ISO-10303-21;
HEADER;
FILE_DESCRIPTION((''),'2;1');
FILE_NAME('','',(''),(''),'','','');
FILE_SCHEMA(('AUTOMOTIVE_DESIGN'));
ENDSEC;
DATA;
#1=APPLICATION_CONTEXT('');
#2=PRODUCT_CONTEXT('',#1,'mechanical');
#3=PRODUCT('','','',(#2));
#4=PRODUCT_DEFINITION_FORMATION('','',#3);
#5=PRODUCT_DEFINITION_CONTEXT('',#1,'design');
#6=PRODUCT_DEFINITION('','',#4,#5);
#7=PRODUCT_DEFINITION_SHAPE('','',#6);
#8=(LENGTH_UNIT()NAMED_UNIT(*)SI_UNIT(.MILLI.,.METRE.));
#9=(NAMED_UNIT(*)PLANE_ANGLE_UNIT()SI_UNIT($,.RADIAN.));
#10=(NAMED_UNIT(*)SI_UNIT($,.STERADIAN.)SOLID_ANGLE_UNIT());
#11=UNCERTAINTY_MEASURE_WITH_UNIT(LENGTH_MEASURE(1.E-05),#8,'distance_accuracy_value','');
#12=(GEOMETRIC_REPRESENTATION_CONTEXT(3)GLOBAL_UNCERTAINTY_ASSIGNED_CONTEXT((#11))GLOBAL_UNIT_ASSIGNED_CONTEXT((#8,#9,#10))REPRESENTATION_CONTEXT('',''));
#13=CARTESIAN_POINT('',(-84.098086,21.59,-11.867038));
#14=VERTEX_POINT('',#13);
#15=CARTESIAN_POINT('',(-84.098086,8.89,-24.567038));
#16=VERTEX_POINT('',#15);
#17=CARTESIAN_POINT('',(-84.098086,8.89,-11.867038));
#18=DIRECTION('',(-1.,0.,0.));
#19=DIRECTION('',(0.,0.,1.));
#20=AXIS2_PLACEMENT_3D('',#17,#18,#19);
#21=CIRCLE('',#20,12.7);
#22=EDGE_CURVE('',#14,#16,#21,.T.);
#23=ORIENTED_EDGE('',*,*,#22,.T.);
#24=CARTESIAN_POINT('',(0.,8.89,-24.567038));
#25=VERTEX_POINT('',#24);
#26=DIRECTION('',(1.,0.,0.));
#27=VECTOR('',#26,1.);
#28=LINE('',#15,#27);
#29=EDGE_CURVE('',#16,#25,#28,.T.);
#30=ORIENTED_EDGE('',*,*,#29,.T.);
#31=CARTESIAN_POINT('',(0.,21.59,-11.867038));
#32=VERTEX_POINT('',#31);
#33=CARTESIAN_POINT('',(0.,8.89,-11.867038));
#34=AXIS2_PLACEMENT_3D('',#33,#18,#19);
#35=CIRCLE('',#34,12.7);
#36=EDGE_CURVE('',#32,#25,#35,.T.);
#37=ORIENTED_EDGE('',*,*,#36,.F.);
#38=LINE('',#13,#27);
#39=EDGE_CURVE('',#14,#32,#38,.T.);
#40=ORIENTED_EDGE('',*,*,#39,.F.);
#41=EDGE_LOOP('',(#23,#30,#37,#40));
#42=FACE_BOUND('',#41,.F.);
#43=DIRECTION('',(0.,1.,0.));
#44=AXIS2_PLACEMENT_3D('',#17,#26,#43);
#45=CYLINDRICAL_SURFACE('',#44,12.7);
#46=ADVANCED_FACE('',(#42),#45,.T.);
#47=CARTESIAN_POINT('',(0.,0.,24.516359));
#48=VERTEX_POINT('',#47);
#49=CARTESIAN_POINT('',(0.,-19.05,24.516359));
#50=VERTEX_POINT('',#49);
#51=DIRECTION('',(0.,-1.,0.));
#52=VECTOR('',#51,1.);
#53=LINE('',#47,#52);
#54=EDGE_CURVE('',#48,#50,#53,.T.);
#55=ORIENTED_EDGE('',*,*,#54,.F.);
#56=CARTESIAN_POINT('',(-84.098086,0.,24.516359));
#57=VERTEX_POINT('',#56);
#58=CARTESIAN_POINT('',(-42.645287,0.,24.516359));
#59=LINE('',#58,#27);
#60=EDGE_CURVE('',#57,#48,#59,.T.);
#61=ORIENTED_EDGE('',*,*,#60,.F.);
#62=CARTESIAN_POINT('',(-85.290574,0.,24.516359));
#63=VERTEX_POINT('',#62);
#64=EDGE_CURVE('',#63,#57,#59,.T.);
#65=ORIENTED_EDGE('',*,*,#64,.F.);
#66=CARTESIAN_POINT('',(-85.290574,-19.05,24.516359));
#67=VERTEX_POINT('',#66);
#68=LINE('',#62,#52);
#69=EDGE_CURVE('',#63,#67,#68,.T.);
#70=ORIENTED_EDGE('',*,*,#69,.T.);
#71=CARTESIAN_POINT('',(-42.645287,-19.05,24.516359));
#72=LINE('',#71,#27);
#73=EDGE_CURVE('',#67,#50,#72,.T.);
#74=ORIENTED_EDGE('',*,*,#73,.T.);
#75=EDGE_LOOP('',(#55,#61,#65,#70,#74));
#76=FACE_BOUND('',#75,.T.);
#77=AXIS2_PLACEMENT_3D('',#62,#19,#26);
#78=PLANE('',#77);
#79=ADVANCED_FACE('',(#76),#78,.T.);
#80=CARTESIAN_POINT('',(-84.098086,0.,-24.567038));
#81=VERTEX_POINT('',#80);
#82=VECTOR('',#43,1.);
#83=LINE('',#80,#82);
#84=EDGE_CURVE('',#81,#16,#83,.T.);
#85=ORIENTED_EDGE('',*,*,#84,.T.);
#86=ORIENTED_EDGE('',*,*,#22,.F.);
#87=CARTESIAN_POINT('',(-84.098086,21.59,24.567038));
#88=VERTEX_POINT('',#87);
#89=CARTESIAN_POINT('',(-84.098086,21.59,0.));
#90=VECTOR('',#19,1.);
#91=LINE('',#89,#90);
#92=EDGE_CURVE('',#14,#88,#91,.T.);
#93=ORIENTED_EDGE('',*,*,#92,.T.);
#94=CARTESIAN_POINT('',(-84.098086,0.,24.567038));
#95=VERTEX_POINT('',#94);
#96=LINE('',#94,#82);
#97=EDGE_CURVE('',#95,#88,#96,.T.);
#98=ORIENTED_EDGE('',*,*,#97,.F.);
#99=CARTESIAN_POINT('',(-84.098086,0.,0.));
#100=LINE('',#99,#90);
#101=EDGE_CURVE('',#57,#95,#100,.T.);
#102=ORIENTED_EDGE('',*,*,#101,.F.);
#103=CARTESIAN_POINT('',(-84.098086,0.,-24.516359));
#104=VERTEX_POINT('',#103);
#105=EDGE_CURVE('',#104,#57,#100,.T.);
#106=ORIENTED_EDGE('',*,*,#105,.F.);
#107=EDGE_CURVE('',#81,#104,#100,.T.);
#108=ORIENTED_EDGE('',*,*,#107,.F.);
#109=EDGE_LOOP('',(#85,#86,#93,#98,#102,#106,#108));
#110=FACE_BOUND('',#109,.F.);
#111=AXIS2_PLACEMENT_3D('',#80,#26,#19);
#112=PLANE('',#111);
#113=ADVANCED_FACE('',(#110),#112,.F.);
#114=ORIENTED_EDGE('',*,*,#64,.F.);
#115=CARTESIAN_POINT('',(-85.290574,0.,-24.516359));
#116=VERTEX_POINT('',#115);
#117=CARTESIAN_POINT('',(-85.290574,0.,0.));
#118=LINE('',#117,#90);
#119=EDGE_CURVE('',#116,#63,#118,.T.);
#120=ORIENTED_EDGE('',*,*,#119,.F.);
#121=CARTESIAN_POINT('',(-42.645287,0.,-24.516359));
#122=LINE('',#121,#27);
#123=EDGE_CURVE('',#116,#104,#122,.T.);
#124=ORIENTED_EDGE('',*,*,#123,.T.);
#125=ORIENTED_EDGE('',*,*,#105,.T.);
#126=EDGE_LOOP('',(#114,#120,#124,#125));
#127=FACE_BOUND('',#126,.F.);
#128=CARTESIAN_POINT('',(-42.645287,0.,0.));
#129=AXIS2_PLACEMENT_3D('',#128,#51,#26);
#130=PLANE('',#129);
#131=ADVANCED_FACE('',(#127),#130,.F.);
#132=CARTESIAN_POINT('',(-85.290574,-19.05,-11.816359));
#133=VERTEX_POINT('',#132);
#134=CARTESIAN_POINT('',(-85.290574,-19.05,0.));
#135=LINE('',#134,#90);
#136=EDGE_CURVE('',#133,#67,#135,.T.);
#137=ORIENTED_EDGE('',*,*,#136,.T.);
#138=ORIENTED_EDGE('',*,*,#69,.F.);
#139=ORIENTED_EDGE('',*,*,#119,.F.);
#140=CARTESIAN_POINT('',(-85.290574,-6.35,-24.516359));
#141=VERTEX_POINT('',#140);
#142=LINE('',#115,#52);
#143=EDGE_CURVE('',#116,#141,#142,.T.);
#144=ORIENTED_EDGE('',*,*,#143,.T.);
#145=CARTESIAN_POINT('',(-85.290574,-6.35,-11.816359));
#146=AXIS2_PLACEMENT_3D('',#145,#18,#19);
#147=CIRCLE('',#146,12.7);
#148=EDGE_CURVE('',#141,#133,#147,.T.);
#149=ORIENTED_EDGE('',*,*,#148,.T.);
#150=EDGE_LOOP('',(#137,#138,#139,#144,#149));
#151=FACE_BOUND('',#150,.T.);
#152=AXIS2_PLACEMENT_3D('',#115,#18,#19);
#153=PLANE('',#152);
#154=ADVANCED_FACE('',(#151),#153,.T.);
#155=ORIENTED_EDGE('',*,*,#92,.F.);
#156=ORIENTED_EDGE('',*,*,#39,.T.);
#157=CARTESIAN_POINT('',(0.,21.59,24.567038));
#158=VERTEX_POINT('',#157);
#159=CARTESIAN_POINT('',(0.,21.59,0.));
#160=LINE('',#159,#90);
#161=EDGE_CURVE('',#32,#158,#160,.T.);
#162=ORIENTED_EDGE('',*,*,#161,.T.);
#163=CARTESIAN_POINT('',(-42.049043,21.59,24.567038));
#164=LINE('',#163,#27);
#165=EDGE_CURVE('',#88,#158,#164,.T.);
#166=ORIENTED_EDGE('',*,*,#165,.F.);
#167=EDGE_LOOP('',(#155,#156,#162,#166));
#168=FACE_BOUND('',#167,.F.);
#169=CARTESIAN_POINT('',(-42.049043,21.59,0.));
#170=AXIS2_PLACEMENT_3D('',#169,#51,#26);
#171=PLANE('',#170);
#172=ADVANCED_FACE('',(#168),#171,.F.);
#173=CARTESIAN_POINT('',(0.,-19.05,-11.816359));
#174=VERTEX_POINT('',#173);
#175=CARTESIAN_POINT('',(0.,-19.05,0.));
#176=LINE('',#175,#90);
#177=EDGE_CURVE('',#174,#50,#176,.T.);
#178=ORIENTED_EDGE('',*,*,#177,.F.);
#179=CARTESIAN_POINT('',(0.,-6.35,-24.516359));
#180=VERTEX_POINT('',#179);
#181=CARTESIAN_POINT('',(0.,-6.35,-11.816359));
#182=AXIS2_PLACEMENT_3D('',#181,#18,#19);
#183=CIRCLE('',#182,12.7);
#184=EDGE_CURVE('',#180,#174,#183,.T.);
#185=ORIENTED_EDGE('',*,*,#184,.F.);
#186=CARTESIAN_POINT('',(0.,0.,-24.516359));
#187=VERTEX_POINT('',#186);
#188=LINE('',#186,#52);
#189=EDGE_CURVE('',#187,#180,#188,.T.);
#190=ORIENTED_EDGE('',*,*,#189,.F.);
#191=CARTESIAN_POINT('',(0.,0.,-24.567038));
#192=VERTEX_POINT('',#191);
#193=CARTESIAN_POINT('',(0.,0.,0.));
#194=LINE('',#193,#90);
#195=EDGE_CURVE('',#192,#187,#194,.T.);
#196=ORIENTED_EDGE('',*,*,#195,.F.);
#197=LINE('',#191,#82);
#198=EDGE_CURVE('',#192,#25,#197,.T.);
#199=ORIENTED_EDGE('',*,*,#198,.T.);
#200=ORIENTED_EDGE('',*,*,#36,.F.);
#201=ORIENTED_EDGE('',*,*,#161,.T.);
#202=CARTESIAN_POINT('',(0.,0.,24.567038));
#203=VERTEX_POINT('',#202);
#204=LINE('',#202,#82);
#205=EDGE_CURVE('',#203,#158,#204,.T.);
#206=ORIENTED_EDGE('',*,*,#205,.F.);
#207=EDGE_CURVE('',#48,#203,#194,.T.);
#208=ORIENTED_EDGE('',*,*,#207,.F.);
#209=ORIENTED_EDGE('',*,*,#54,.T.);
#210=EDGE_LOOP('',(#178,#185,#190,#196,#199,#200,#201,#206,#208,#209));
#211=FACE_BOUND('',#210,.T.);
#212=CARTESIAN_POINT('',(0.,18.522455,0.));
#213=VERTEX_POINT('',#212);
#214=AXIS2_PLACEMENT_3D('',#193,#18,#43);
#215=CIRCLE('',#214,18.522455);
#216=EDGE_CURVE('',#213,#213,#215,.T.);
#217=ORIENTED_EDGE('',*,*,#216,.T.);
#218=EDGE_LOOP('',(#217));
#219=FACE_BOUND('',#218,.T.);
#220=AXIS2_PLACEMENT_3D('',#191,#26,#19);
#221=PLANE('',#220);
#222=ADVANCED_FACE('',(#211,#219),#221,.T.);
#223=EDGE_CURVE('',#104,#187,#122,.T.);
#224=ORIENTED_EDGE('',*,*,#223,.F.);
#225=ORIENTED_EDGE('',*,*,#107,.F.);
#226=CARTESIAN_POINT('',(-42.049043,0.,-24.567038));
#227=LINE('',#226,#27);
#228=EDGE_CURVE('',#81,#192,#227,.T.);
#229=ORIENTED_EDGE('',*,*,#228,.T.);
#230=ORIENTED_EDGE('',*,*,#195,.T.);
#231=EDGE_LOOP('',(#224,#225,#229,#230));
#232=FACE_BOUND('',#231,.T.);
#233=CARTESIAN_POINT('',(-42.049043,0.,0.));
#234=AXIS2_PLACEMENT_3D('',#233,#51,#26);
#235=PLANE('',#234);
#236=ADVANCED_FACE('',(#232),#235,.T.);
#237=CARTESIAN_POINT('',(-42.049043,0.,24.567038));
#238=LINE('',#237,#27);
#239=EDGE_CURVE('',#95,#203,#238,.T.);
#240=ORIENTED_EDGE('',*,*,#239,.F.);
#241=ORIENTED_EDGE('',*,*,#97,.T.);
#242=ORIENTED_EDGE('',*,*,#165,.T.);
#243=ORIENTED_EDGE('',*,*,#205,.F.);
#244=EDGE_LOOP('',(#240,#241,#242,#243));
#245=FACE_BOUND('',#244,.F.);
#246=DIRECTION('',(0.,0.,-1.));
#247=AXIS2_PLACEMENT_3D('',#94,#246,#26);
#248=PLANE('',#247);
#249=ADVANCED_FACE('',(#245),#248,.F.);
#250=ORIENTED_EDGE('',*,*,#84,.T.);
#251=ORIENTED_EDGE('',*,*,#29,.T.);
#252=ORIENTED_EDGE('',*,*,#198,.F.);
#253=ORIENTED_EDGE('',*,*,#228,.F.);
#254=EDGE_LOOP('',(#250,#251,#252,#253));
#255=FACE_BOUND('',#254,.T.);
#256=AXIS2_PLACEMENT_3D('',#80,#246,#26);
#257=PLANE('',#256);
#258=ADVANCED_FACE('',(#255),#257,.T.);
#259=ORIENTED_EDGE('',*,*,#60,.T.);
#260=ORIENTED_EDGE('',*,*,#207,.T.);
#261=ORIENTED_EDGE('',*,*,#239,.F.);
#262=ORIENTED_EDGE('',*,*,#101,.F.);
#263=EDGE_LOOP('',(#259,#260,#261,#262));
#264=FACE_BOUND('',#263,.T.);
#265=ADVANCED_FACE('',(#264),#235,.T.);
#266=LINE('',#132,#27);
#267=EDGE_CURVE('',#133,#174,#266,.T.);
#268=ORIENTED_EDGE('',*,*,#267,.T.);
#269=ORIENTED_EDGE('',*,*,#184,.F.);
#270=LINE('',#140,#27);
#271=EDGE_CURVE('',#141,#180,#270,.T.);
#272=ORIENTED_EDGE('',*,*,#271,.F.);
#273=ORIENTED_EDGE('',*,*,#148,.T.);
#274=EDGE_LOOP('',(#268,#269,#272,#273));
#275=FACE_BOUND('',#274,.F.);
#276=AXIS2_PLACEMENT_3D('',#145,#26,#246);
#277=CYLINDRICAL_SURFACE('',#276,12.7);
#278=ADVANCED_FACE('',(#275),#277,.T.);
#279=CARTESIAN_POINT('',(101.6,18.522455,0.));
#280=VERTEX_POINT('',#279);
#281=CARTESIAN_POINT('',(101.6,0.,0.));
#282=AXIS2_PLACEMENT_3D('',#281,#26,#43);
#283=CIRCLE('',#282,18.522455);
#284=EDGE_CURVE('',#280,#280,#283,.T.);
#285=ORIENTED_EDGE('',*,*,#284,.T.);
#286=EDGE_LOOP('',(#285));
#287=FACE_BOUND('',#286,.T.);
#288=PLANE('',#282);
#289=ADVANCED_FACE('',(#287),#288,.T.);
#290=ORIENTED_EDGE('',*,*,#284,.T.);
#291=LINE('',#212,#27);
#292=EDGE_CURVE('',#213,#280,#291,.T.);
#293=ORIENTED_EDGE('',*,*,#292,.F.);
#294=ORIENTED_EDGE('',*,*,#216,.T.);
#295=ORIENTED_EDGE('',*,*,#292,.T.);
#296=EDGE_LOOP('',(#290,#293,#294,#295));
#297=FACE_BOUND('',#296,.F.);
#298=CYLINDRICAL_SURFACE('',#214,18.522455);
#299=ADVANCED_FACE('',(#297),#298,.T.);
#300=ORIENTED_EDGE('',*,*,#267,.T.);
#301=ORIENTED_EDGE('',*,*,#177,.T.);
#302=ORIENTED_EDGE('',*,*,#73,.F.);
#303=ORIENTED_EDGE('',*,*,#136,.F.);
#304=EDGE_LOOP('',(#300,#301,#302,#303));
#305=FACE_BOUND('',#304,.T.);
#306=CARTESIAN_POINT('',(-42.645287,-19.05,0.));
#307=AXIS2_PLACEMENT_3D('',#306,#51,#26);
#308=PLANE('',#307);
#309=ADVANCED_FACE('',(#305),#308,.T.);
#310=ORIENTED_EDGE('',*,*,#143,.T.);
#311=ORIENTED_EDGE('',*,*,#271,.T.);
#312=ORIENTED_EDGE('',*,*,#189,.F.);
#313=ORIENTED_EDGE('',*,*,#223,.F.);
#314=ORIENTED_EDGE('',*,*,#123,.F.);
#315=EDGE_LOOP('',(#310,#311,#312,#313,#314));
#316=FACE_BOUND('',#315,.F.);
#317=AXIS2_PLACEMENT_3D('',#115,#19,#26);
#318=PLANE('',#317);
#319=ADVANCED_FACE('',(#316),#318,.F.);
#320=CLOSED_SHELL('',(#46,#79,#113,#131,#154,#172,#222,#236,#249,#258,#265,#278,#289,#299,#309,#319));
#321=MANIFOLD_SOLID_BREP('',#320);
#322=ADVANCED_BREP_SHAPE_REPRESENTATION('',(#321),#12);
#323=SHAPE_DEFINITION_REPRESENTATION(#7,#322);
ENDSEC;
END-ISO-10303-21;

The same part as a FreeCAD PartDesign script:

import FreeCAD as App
import Part
import Sketcher
Q = App.Units.Quantity


def edges_at(feature, points):
    """Names of the edges that pass closest to the given points."""
    edges = feature.Shape.Edges
    near = lambda p: min(range(len(edges)), key=lambda i: edges[i].distToShape(Part.Vertex(*p))[0])
    return sorted({f"Edge{near(p) + 1}" for p in points})


def add_polygon(sketch, points):
    """Adds a closed chain of lines whose ends are joined by coincident constraints."""
    first, n = sketch.GeometryCount, len(points)
    for a, b in zip(points, points[1:] + points[:1]):
        sketch.addGeometry(Part.LineSegment(App.Vector(*a, 0), App.Vector(*b, 0)), False)
    for i in range(n):
        sketch.addConstraint(Sketcher.Constraint("Coincident", first + i, 2, first + (i + 1) % n, 1))

doc = App.newDocument("Part")
body = doc.addObject("PartDesign::Body", "Body")

sketch1 = body.newObject("Sketcher::SketchObject", "Sketch")
sketch1.AttachmentSupport = (doc.getObject("YZ_Plane"), [""])
sketch1.MapMode = "FlatFace"
sketch1.addGeometry(Part.Circle(App.Vector(0, 0, 0), App.Vector(0, 0, 1), 18.522455), False)
sketch1.addConstraint(Sketcher.Constraint("Coincident", 0, 3, -1, 1))
sketch1.addConstraint(Sketcher.Constraint("Diameter", 0, 37.04491))
pad1 = body.newObject("PartDesign::Pad", "Pad")
pad1.Profile = sketch1
pad1.Length = Q("4 in")

sketch2 = body.newObject("Sketcher::SketchObject", "Sketch001")
sketch2.AttachmentSupport = (doc.getObject("XZ_Plane"), [""])
sketch2.MapMode = "FlatFace"
add_polygon(sketch2, [(-85.290574, 24.516359), (-85.290574, -24.516359), (0, -24.516359), (0, 24.516359)])
sketch2.addConstraint(Sketcher.Constraint("Vertical", 0))
sketch2.addConstraint(Sketcher.Constraint("Horizontal", 1))
sketch2.addConstraint(Sketcher.Constraint("Vertical", 2))
sketch2.addConstraint(Sketcher.Constraint("Horizontal", 3))
sketch2.addConstraint(Sketcher.Constraint("Symmetric", 1, 2, 2, 2, -1, 1))
sketch2.addConstraint(Sketcher.Constraint("DistanceY", 0, 2, 0, 1, 49.032718))
sketch2.addConstraint(Sketcher.Constraint("DistanceX", 1, 1, 1, 2, 85.290574))
pad2 = body.newObject("PartDesign::Pad", "Pad001")
pad2.Profile = sketch2
pad2.Length = Q("0.75 in")

sketch3 = body.newObject("Sketcher::SketchObject", "Sketch002")
sketch3.AttachmentSupport = (doc.getObject("XZ_Plane"), [""])
sketch3.MapMode = "FlatFace"
add_polygon(sketch3, [(-84.098086, 24.567038), (-84.098086, -24.567038), (0, -24.567038), (0, 24.567038)])
sketch3.addConstraint(Sketcher.Constraint("Vertical", 0))
sketch3.addConstraint(Sketcher.Constraint("Horizontal", 1))
sketch3.addConstraint(Sketcher.Constraint("Vertical", 2))
sketch3.addConstraint(Sketcher.Constraint("Horizontal", 3))
sketch3.addConstraint(Sketcher.Constraint("Symmetric", 1, 2, 2, 2, -1, 1))
sketch3.addConstraint(Sketcher.Constraint("DistanceX", 1, 1, 1, 2, 84.098086))
sketch3.addConstraint(Sketcher.Constraint("DistanceY", 0, 2, 0, 1, 49.134076))
pad3 = body.newObject("PartDesign::Pad", "Pad002")
pad3.Profile = sketch3
pad3.Length = Q("0.85 in")
pad3.Reversed = True
doc.recompute()

fillet = body.newObject("PartDesign::Fillet", "Fillet")
fillet.Base = (pad3, edges_at(pad3, [(-42.049, 21.59, -24.567), (-42.645, -19.05, -24.516)]))
fillet.Radius = Q("0.5 in")

doc.recompute()
